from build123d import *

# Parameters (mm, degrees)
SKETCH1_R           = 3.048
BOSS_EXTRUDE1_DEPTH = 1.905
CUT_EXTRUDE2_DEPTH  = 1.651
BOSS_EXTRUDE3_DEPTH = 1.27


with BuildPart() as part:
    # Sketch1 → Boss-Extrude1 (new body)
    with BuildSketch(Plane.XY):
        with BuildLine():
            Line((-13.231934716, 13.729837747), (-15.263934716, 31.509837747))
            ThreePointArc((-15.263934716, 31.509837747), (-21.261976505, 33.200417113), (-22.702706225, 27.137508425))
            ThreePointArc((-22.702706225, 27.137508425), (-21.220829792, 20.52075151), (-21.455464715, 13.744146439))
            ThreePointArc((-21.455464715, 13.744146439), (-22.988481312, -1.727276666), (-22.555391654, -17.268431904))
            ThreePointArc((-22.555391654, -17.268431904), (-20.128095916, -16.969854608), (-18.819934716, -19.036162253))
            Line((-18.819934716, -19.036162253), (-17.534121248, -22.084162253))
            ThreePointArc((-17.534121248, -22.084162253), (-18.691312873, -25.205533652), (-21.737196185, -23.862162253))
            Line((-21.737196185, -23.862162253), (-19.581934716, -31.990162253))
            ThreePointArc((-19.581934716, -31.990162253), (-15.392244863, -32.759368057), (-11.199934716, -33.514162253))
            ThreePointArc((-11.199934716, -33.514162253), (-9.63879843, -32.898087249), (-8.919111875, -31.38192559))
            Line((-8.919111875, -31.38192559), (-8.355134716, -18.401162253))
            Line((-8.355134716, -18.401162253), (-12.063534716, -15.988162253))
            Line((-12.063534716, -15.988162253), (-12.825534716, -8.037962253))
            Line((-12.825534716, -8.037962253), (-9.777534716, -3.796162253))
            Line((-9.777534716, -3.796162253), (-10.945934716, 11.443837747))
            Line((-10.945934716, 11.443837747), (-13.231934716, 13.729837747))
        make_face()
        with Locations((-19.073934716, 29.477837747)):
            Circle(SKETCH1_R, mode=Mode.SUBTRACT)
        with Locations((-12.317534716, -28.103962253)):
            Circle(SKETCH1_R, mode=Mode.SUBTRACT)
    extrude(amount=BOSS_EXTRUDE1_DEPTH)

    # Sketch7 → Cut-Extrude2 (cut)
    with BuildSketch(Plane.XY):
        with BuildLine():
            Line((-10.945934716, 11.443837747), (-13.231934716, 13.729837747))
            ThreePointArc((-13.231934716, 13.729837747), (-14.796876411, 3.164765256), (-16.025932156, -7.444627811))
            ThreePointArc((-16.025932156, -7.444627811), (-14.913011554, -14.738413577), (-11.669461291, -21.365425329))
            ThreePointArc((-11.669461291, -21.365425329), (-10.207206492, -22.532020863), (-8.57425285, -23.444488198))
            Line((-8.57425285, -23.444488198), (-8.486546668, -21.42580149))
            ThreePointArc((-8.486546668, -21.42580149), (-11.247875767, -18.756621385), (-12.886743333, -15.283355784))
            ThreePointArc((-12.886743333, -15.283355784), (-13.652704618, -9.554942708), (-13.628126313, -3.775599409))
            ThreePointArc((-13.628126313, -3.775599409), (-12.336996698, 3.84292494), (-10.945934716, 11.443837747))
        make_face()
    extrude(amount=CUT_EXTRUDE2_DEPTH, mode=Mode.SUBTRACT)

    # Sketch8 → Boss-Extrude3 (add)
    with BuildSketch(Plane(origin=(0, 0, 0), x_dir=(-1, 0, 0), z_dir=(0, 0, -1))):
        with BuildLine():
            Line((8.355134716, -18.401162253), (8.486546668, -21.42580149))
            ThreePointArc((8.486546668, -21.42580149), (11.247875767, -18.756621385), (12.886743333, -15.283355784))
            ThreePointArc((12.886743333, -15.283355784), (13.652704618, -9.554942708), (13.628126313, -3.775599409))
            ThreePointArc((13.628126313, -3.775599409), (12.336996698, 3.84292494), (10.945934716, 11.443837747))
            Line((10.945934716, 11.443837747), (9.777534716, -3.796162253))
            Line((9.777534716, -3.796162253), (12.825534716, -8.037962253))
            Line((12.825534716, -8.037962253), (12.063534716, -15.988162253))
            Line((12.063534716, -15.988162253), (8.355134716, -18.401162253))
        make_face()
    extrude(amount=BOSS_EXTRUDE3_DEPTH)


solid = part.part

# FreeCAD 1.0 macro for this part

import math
import FreeCAD as App
import Part
import Sketcher

V = App.Vector
Q = App.Units.Quantity

doc = App.newDocument("Part")
body = doc.addObject("PartDesign::Body", "Body")

# Sketch on XY plane
sketch1 = body.newObject("Sketcher::SketchObject", "Sketch")
sketch1.AttachmentSupport = (doc.getObject("XY_Plane"), [""])
sketch1.MapMode = "FlatFace"
sketch1.addGeometry(Part.LineSegment(V(-13.2, 13.7, 0), V(-15.3, 31.5, 0)), False)
sketch1.addGeometry(Part.ArcOfCircle(Part.Circle(V(-19.1, 29.5, 0), V(0, 0, 1), 4.3), math.radians(28), math.radians(213)), False)
sketch1.addGeometry(Part.ArcOfCircle(Part.Circle(V(-47.8, 18, 0), V(0, 0, 1), 26.7), math.radians(-9), math.radians(20)), False)
sketch1.addGeometry(Part.ArcOfCircle(Part.Circle(V(99.8, -6.1, 0), V(0, 0, 1), 122.9), math.radians(170.71), math.radians(185.22)), False)
sketch1.addGeometry(Part.ArcOfCircle(Part.Circle(V(-21.1, -19, 0), V(0, 0, 1), 2.3), math.radians(0), math.radians(129)), False)
sketch1.addGeometry(Part.LineSegment(V(-18.8, -19, 0), V(-17.5, -22.1, 0)), False)
sketch1.addGeometry(Part.ArcOfCircle(Part.Circle(V(-19.6, -23.1, 0), V(0, 0, 1), 2.3), math.radians(-161), math.radians(26)), False)
sketch1.addGeometry(Part.LineSegment(V(-21.7, -23.9, 0), V(-19.6, -32, 0)), False)
sketch1.addGeometry(Part.ArcOfCircle(Part.Circle(V(206.2, 1186, 0), V(0, 0, 1), 1238.8), math.radians(-100.5), math.radians(-100.11)), False)
sketch1.addGeometry(Part.ArcOfCircle(Part.Circle(V(-11.2, -31.2, 0), V(0, 0, 1), 2.3), math.radians(-90), math.radians(-4)), False)
sketch1.addGeometry(Part.LineSegment(V(-8.9, -31.4, 0), V(-8.4, -18.4, 0)), False)
sketch1.addGeometry(Part.LineSegment(V(-8.4, -18.4, 0), V(-12.1, -16, 0)), False)
sketch1.addGeometry(Part.LineSegment(V(-12.1, -16, 0), V(-12.8, -8, 0)), False)
sketch1.addGeometry(Part.LineSegment(V(-12.8, -8, 0), V(-9.8, -3.8, 0)), False)
sketch1.addGeometry(Part.LineSegment(V(-9.8, -3.8, 0), V(-10.9, 11.4, 0)), False)
sketch1.addGeometry(Part.LineSegment(V(-10.9, 11.4, 0), V(-13.2, 13.7, 0)), False)
sketch1.addGeometry(Part.Circle(V(-12.3, -28.1, 0), V(0, 0, 1), 3), False)
sketch1.addGeometry(Part.Circle(V(-19.1, 29.5, 0), V(0, 0, 1), 3), False)
sketch1.addConstraint(Sketcher.Constraint("Coincident", 0, 2, 1, 1))
sketch1.addConstraint(Sketcher.Constraint("Coincident", 1, 2, 2, 2))
sketch1.addConstraint(Sketcher.Constraint("Tangent", 2, 1, 3, 1))
sketch1.addConstraint(Sketcher.Constraint("Coincident", 3, 2, 4, 2))
sketch1.addConstraint(Sketcher.Constraint("Coincident", 4, 1, 5, 1))
sketch1.addConstraint(Sketcher.Constraint("Coincident", 5, 2, 6, 2))
sketch1.addConstraint(Sketcher.Constraint("Coincident", 6, 1, 7, 1))
sketch1.addConstraint(Sketcher.Constraint("Coincident", 7, 2, 8, 1))
sketch1.addConstraint(Sketcher.Constraint("Coincident", 8, 2, 9, 1))
sketch1.addConstraint(Sketcher.Constraint("Coincident", 9, 2, 10, 1))
sketch1.addConstraint(Sketcher.Constraint("Coincident", 10, 2, 11, 1))
sketch1.addConstraint(Sketcher.Constraint("Coincident", 11, 2, 12, 1))
sketch1.addConstraint(Sketcher.Constraint("Coincident", 12, 2, 13, 1))
sketch1.addConstraint(Sketcher.Constraint("Coincident", 13, 2, 14, 1))
sketch1.addConstraint(Sketcher.Constraint("Coincident", 14, 2, 15, 1))
sketch1.addConstraint(Sketcher.Constraint("Coincident", 15, 2, 0, 1))
sketch1.addConstraint(Sketcher.Constraint("Coincident", 17, 3, 1, 3))
sketch1.addConstraint(Sketcher.Constraint("Equal", 4, 6))
sketch1.addConstraint(Sketcher.Constraint("Equal", 6, 9))
sketch1.addConstraint(Sketcher.Constraint("Equal", 16, 17))
sketch1.addConstraint(Sketcher.Constraint("Vertical", 6, 3, 7, 2))
sketch1.addConstraint(Sketcher.Constraint("Diameter", 16, Q("0.24 in")))
sketch1.addConstraint(Sketcher.Constraint("Radius", 1, Q("0.17 in")))
sketch1.addConstraint(Sketcher.Constraint("Radius", 2, Q("1.05 in")))
sketch1.addConstraint(Sketcher.Constraint("Radius", 4, Q("0.09 in")))
sketch1.addConstraint(Sketcher.Constraint("Angle", 15, Q("135 deg")))
sketch1.addConstraint(Sketcher.Constraint("DistanceY", 3, 3, 1, 3, Q("1.4 in")))
sketch1.addConstraint(Sketcher.Constraint("DistanceX", 6, 3, 3, 3, Q("4.7 in")))
sketch1.addConstraint(Sketcher.Constraint("DistanceX", 4, 1, 9, 3, Q("0.3 in")))
sketch1.addConstraint(Sketcher.Constraint("DistanceY", 4, 1, 13, 2, Q("0.6 in")))
sketch1.addConstraint(Sketcher.Constraint("DistanceY", 13, 2, 14, 2, Q("0.6 in")))
sketch1.addConstraint(Sketcher.Constraint("DistanceX", 2, 3, 1, 3, Q("1.13 in")))
sketch1.addConstraint(Sketcher.Constraint("DistanceY", 2, 3, 1, 3, Q("0.45 in")))
sketch1.addConstraint(Sketcher.Constraint("DistanceX", 1, 3, 3, 3, Q("4.68 in")))
sketch1.addConstraint(Sketcher.Constraint("DistanceX", 2, 3, 4, 3, Q("1.05 in")))
sketch1.addConstraint(Sketcher.Constraint("DistanceY", 4, 3, 2, 3, Q("1.46 in")))
sketch1.addConstraint(Sketcher.Constraint("DistanceY", 6, 3, 4, 3, Q("0.16 in")))
sketch1.addConstraint(Sketcher.Constraint("DistanceY", 9, 3, 6, 3, Q("0.32 in")))
sketch1.addConstraint(Sketcher.Constraint("DistanceX", 1, 3, 0, 2, Q("0.15 in")))
sketch1.addConstraint(Sketcher.Constraint("DistanceY", 6, 3, 4, 1, Q("0.16 in")))
sketch1.addConstraint(Sketcher.Constraint("DistanceY", 6, 3, 5, 2, Q("0.04 in")))
sketch1.addConstraint(Sketcher.Constraint("DistanceY", 6, 1, 6, 3, Q("0.03 in")))
sketch1.addConstraint(Sketcher.Constraint("DistanceY", 7, 2, 6, 1, Q("0.32 in")))
sketch1.addConstraint(Sketcher.Constraint("DistanceY", 4, 1, 11, 2, Q("0.12 in")))
sketch1.addConstraint(Sketcher.Constraint("DistanceX", 12, 2, 11, 2, Q("0.03 in")))
sketch1.addConstraint(Sketcher.Constraint("DistanceX", 12, 2, 13, 2, Q("0.12 in")))
sketch1.addConstraint(Sketcher.Constraint("DistanceX", 17, 3, 14, 2, Q("0.32 in")))
sketch1.addConstraint(Sketcher.Constraint("DistanceX", 15, 2, 14, 2, Q("0.09 in")))
sketch1.addConstraint(Sketcher.Constraint("DistanceX", 16, 3, 9, 3, Q("0.044 in")))
sketch1.addConstraint(Sketcher.Constraint("DistanceY", 9, 3, 16, 3, Q("0.123 in")))
sketch1.addConstraint(Sketcher.Constraint("DistanceY", 5, 2, 10, 2, Q("0.145 in")))
sketch1.addConstraint(Sketcher.Constraint("DistanceX", 16, 3, 10, 2, Q("0.156 in")))
sketch1.addConstraint(Sketcher.Constraint("DistanceX", 11, 2, 10, 2, Q("0.146 in")))
sketch1.addConstraint(Sketcher.Constraint("DistanceY", 11, 2, 12, 2, Q("0.313 in")))
sketch1.addConstraint(Sketcher.Constraint("Radius", 8, 1238.758015))
sketch1.addConstraint(Sketcher.Constraint("Distance", 10, 12.993009))
sketch1.addConstraint(Sketcher.Constraint("DistanceY", -1, 1, 8, 3, 1186.017369))
sketch1.addConstraint(Sketcher.Constraint("DistanceY", -1, 1, 1, 2, 27.137508))
sketch1.addConstraint(Sketcher.Constraint("DistanceX", 3, 2, -1, 1, 22.555392))
pad1 = body.newObject("PartDesign::Pad", "Pad")
pad1.Profile = sketch1
pad1.Length = Q("0.075 in")

# Sketch on XY plane
sketch2 = body.newObject("Sketcher::SketchObject", "Sketch001")
sketch2.AttachmentSupport = (doc.getObject("XY_Plane"), [""])
sketch2.MapMode = "FlatFace"
sketch2.addGeometry(Part.LineSegment(V(-10.9, 11.4, 0), V(-13.2, 13.7, 0)), False)
sketch2.addGeometry(Part.ArcOfCircle(Part.Circle(V(319, -40.9, 0), V(0, 0, 1), 336.7), math.radians(170.67), math.radians(174.3)), False)
sketch2.addGeometry(Part.ArcOfCircle(Part.Circle(V(8.4, -7.5, 0), V(0, 0, 1), 24.4), math.radians(180), math.radians(215)), False)
sketch2.addGeometry(Part.ArcOfCircle(Part.Circle(V(-3.8, -13, 0), V(0, 0, 1), 11.4), math.radians(-133.28), math.radians(-114.5)), False)
sketch2.addGeometry(Part.LineSegment(V(-8.6, -23.4, 0), V(-8.5, -21.4, 0)), False)
sketch2.addGeometry(Part.ArcOfCircle(Part.Circle(V(-2.6, -12.5, 0), V(0, 0, 1), 10.7), math.radians(-165), math.radians(-124)), False)
sketch2.addGeometry(Part.ArcOfCircle(Part.Circle(V(28.4, -6.8, 0), V(0, 0, 1), 42.2), math.radians(175.83), math.radians(191.55)), False)
sketch2.addGeometry(Part.ArcOfCircle(Part.Circle(V(567.2, -98.3, 0), V(0, 0, 1), 588.4), math.radians(169.25), math.radians(170.76)), False)
sketch2.addConstraint(Sketcher.Constraint("Coincident", 0, 2, 1, 1))
sketch2.addConstraint(Sketcher.Constraint("Coincident", 1, 2, 2, 1))
sketch2.addConstraint(Sketcher.Constraint("Coincident", 2, 2, 3, 1))
sketch2.addConstraint(Sketcher.Constraint("Coincident", 3, 2, 4, 1))
sketch2.addConstraint(Sketcher.Constraint("Coincident", 4, 2, 5, 2))
sketch2.addConstraint(Sketcher.Constraint("Coincident", 5, 1, 6, 2))
sketch2.addConstraint(Sketcher.Constraint("Coincident", 6, 1, 7, 2))
sketch2.addConstraint(Sketcher.Constraint("Coincident", 7, 1, 0, 1))
sketch2.addConstraint(Sketcher.Constraint("Radius", 2, Q("0.96 in")))
sketch2.addConstraint(Sketcher.Constraint("Radius", 3, Q("0.45 in")))
sketch2.addConstraint(Sketcher.Constraint("Radius", 6, Q("1.66 in")))
sketch2.addConstraint(Sketcher.Constraint("Angle", 0, Q("135 deg")))
sketch2.addConstraint(Sketcher.Constraint("DistanceX", 2, 3, 7, 3, Q("22.0000001 in")))
sketch2.addConstraint(Sketcher.Constraint("DistanceY", 5, 3, 2, 3, Q("0.2 in")))
sketch2.addConstraint(Sketcher.Constraint("DistanceY", 7, 3, 6, 3, Q("3.6 in")))
sketch2.addConstraint(Sketcher.Constraint("DistanceX", 1, 2, 7, 1, Q("0.1999999 in")))
sketch2.addConstraint(Sketcher.Constraint("Radius", 5, 10.682202))
sketch2.addConstraint(Sketcher.Constraint("DistanceX", 2, 3, 1, 3, Q("12.23 in")))
sketch2.addConstraint(Sketcher.Constraint("DistanceX", 3, 3, 2, 3, Q("0.48 in")))
sketch2.addConstraint(Sketcher.Constraint("DistanceY", 3, 3, 2, 3, Q("0.22 in")))
sketch2.addConstraint(Sketcher.Constraint("DistanceX", 3, 3, 5, 3, Q("0.05 in")))
sketch2.addConstraint(Sketcher.Constraint("DistanceX", 2, 3, 6, 3, Q("0.79 in")))
sketch2.addConstraint(Sketcher.Constraint("DistanceY", 1, 3, 6, 3, Q("1.34 in")))
sketch2.addConstraint(Sketcher.Constraint("DistanceX", 0, 2, 5, 3, Q("0.42 in")))
sketch2.addConstraint(Sketcher.Constraint("DistanceY", 6, 3, 0, 2, Q("0.81 in")))
sketch2.addConstraint(Sketcher.Constraint("DistanceY", 4, 2, 3, 3, Q("0.33 in")))
sketch2.addConstraint(Sketcher.Constraint("DistanceY", 2, 3, -1, 1, 7.455801))
sketch2.addConstraint(Sketcher.Constraint("DistanceY", 6, 1, -1, 1, 3.775599))
sketch2.addConstraint(Sketcher.Constraint("Distance", 4, 2.020591))
sketch2.addConstraint(Sketcher.Constraint("DistanceX", 2, 2, -1, 1, 11.669461))
pocket1 = body.newObject("PartDesign::Pocket", "Pocket")
pocket1.Profile = sketch2
pocket1.Length = Q("0.065 in")
pocket1.Reversed = True

# Sketch on XY plane
sketch3 = body.newObject("Sketcher::SketchObject", "Sketch002")
sketch3.AttachmentSupport = (doc.getObject("XY_Plane"), [""])
sketch3.MapMode = "FlatFace"
sketch3.addGeometry(Part.LineSegment(V(-8.4, -18.4, 0), V(-8.5, -21.4, 0)), False)
sketch3.addGeometry(Part.ArcOfCircle(Part.Circle(V(-2.6, -12.5, 0), V(0, 0, 1), 10.7), math.radians(-165), math.radians(-124)), False)
sketch3.addGeometry(Part.ArcOfCircle(Part.Circle(V(28.4, -6.8, 0), V(0, 0, 1), 42.2), math.radians(175.83), math.radians(191.55)), False)
sketch3.addGeometry(Part.ArcOfCircle(Part.Circle(V(567.2, -98.3, 0), V(0, 0, 1), 588.4), math.radians(169.25), math.radians(170.76)), False)
sketch3.addGeometry(Part.LineSegment(V(-10.9, 11.4, 0), V(-9.8, -3.8, 0)), False)
sketch3.addGeometry(Part.LineSegment(V(-9.8, -3.8, 0), V(-12.8, -8, 0)), False)
sketch3.addGeometry(Part.LineSegment(V(-12.8, -8, 0), V(-12.1, -16, 0)), False)
sketch3.addGeometry(Part.LineSegment(V(-12.1, -16, 0), V(-8.4, -18.4, 0)), False)
sketch3.addConstraint(Sketcher.Constraint("Coincident", 0, 2, 1, 2))
sketch3.addConstraint(Sketcher.Constraint("Coincident", 1, 1, 2, 2))
sketch3.addConstraint(Sketcher.Constraint("Coincident", 2, 1, 3, 2))
sketch3.addConstraint(Sketcher.Constraint("Coincident", 3, 1, 4, 1))
sketch3.addConstraint(Sketcher.Constraint("Coincident", 4, 2, 5, 1))
sketch3.addConstraint(Sketcher.Constraint("Coincident", 5, 2, 6, 1))
sketch3.addConstraint(Sketcher.Constraint("Coincident", 6, 2, 7, 1))
sketch3.addConstraint(Sketcher.Constraint("Coincident", 7, 2, 0, 1))
sketch3.addConstraint(Sketcher.Constraint("Radius", 2, Q("1.66 in")))
sketch3.addConstraint(Sketcher.Constraint("DistanceY", 3, 3, 2, 3, Q("3.6 in")))
sketch3.addConstraint(Sketcher.Constraint("DistanceY", 4, 2, 3, 1, Q("0.6 in")))
sketch3.addConstraint(Sketcher.Constraint("Radius", 1, 10.682202))
sketch3.addConstraint(Sketcher.Constraint("DistanceX", 1, 3, 2, 3, Q("1.22 in")))
sketch3.addConstraint(Sketcher.Constraint("DistanceX", 2, 3, 3, 3, Q("21.2100001 in")))
sketch3.addConstraint(Sketcher.Constraint("DistanceY", 0, 2, 1, 3, Q("0.35 in")))
sketch3.addConstraint(Sketcher.Constraint("DistanceX", 3, 1, 1, 3, Q("0.33 in")))
sketch3.addConstraint(Sketcher.Constraint("DistanceX", 5, 2, 4, 2, Q("0.12 in")))
sketch3.addConstraint(Sketcher.Constraint("DistanceX", 5, 2, 6, 2, Q("0.03 in")))
sketch3.addConstraint(Sketcher.Constraint("DistanceX", 4, 2, 1, 3, Q("0.284 in")))
sketch3.addConstraint(Sketcher.Constraint("DistanceY", 5, 2, 4, 2, Q("0.167 in")))
sketch3.addConstraint(Sketcher.Constraint("DistanceY", 6, 2, 5, 2, Q("0.313 in")))
sketch3.addConstraint(Sketcher.Constraint("DistanceX", 6, 2, 7, 2, Q("0.146 in")))
sketch3.addConstraint(Sketcher.Constraint("DistanceY", 7, 2, 6, 2, Q("0.095 in")))
sketch3.addConstraint(Sketcher.Constraint("Radius", 3, 588.425417))
sketch3.addConstraint(Sketcher.Constraint("DistanceY", 1, 3, -1, 1, 12.535801))
sketch3.addConstraint(Sketcher.Constraint("DistanceY", 2, 1, -1, 1, 3.775599))
sketch3.addConstraint(Sketcher.Constraint("DistanceX", 1, 3, -1, 1, 2.563935))
pad2 = body.newObject("PartDesign::Pad", "Pad001")
pad2.Profile = sketch3
pad2.Length = Q("0.05 in")
pad2.Reversed = True

doc.recompute()
